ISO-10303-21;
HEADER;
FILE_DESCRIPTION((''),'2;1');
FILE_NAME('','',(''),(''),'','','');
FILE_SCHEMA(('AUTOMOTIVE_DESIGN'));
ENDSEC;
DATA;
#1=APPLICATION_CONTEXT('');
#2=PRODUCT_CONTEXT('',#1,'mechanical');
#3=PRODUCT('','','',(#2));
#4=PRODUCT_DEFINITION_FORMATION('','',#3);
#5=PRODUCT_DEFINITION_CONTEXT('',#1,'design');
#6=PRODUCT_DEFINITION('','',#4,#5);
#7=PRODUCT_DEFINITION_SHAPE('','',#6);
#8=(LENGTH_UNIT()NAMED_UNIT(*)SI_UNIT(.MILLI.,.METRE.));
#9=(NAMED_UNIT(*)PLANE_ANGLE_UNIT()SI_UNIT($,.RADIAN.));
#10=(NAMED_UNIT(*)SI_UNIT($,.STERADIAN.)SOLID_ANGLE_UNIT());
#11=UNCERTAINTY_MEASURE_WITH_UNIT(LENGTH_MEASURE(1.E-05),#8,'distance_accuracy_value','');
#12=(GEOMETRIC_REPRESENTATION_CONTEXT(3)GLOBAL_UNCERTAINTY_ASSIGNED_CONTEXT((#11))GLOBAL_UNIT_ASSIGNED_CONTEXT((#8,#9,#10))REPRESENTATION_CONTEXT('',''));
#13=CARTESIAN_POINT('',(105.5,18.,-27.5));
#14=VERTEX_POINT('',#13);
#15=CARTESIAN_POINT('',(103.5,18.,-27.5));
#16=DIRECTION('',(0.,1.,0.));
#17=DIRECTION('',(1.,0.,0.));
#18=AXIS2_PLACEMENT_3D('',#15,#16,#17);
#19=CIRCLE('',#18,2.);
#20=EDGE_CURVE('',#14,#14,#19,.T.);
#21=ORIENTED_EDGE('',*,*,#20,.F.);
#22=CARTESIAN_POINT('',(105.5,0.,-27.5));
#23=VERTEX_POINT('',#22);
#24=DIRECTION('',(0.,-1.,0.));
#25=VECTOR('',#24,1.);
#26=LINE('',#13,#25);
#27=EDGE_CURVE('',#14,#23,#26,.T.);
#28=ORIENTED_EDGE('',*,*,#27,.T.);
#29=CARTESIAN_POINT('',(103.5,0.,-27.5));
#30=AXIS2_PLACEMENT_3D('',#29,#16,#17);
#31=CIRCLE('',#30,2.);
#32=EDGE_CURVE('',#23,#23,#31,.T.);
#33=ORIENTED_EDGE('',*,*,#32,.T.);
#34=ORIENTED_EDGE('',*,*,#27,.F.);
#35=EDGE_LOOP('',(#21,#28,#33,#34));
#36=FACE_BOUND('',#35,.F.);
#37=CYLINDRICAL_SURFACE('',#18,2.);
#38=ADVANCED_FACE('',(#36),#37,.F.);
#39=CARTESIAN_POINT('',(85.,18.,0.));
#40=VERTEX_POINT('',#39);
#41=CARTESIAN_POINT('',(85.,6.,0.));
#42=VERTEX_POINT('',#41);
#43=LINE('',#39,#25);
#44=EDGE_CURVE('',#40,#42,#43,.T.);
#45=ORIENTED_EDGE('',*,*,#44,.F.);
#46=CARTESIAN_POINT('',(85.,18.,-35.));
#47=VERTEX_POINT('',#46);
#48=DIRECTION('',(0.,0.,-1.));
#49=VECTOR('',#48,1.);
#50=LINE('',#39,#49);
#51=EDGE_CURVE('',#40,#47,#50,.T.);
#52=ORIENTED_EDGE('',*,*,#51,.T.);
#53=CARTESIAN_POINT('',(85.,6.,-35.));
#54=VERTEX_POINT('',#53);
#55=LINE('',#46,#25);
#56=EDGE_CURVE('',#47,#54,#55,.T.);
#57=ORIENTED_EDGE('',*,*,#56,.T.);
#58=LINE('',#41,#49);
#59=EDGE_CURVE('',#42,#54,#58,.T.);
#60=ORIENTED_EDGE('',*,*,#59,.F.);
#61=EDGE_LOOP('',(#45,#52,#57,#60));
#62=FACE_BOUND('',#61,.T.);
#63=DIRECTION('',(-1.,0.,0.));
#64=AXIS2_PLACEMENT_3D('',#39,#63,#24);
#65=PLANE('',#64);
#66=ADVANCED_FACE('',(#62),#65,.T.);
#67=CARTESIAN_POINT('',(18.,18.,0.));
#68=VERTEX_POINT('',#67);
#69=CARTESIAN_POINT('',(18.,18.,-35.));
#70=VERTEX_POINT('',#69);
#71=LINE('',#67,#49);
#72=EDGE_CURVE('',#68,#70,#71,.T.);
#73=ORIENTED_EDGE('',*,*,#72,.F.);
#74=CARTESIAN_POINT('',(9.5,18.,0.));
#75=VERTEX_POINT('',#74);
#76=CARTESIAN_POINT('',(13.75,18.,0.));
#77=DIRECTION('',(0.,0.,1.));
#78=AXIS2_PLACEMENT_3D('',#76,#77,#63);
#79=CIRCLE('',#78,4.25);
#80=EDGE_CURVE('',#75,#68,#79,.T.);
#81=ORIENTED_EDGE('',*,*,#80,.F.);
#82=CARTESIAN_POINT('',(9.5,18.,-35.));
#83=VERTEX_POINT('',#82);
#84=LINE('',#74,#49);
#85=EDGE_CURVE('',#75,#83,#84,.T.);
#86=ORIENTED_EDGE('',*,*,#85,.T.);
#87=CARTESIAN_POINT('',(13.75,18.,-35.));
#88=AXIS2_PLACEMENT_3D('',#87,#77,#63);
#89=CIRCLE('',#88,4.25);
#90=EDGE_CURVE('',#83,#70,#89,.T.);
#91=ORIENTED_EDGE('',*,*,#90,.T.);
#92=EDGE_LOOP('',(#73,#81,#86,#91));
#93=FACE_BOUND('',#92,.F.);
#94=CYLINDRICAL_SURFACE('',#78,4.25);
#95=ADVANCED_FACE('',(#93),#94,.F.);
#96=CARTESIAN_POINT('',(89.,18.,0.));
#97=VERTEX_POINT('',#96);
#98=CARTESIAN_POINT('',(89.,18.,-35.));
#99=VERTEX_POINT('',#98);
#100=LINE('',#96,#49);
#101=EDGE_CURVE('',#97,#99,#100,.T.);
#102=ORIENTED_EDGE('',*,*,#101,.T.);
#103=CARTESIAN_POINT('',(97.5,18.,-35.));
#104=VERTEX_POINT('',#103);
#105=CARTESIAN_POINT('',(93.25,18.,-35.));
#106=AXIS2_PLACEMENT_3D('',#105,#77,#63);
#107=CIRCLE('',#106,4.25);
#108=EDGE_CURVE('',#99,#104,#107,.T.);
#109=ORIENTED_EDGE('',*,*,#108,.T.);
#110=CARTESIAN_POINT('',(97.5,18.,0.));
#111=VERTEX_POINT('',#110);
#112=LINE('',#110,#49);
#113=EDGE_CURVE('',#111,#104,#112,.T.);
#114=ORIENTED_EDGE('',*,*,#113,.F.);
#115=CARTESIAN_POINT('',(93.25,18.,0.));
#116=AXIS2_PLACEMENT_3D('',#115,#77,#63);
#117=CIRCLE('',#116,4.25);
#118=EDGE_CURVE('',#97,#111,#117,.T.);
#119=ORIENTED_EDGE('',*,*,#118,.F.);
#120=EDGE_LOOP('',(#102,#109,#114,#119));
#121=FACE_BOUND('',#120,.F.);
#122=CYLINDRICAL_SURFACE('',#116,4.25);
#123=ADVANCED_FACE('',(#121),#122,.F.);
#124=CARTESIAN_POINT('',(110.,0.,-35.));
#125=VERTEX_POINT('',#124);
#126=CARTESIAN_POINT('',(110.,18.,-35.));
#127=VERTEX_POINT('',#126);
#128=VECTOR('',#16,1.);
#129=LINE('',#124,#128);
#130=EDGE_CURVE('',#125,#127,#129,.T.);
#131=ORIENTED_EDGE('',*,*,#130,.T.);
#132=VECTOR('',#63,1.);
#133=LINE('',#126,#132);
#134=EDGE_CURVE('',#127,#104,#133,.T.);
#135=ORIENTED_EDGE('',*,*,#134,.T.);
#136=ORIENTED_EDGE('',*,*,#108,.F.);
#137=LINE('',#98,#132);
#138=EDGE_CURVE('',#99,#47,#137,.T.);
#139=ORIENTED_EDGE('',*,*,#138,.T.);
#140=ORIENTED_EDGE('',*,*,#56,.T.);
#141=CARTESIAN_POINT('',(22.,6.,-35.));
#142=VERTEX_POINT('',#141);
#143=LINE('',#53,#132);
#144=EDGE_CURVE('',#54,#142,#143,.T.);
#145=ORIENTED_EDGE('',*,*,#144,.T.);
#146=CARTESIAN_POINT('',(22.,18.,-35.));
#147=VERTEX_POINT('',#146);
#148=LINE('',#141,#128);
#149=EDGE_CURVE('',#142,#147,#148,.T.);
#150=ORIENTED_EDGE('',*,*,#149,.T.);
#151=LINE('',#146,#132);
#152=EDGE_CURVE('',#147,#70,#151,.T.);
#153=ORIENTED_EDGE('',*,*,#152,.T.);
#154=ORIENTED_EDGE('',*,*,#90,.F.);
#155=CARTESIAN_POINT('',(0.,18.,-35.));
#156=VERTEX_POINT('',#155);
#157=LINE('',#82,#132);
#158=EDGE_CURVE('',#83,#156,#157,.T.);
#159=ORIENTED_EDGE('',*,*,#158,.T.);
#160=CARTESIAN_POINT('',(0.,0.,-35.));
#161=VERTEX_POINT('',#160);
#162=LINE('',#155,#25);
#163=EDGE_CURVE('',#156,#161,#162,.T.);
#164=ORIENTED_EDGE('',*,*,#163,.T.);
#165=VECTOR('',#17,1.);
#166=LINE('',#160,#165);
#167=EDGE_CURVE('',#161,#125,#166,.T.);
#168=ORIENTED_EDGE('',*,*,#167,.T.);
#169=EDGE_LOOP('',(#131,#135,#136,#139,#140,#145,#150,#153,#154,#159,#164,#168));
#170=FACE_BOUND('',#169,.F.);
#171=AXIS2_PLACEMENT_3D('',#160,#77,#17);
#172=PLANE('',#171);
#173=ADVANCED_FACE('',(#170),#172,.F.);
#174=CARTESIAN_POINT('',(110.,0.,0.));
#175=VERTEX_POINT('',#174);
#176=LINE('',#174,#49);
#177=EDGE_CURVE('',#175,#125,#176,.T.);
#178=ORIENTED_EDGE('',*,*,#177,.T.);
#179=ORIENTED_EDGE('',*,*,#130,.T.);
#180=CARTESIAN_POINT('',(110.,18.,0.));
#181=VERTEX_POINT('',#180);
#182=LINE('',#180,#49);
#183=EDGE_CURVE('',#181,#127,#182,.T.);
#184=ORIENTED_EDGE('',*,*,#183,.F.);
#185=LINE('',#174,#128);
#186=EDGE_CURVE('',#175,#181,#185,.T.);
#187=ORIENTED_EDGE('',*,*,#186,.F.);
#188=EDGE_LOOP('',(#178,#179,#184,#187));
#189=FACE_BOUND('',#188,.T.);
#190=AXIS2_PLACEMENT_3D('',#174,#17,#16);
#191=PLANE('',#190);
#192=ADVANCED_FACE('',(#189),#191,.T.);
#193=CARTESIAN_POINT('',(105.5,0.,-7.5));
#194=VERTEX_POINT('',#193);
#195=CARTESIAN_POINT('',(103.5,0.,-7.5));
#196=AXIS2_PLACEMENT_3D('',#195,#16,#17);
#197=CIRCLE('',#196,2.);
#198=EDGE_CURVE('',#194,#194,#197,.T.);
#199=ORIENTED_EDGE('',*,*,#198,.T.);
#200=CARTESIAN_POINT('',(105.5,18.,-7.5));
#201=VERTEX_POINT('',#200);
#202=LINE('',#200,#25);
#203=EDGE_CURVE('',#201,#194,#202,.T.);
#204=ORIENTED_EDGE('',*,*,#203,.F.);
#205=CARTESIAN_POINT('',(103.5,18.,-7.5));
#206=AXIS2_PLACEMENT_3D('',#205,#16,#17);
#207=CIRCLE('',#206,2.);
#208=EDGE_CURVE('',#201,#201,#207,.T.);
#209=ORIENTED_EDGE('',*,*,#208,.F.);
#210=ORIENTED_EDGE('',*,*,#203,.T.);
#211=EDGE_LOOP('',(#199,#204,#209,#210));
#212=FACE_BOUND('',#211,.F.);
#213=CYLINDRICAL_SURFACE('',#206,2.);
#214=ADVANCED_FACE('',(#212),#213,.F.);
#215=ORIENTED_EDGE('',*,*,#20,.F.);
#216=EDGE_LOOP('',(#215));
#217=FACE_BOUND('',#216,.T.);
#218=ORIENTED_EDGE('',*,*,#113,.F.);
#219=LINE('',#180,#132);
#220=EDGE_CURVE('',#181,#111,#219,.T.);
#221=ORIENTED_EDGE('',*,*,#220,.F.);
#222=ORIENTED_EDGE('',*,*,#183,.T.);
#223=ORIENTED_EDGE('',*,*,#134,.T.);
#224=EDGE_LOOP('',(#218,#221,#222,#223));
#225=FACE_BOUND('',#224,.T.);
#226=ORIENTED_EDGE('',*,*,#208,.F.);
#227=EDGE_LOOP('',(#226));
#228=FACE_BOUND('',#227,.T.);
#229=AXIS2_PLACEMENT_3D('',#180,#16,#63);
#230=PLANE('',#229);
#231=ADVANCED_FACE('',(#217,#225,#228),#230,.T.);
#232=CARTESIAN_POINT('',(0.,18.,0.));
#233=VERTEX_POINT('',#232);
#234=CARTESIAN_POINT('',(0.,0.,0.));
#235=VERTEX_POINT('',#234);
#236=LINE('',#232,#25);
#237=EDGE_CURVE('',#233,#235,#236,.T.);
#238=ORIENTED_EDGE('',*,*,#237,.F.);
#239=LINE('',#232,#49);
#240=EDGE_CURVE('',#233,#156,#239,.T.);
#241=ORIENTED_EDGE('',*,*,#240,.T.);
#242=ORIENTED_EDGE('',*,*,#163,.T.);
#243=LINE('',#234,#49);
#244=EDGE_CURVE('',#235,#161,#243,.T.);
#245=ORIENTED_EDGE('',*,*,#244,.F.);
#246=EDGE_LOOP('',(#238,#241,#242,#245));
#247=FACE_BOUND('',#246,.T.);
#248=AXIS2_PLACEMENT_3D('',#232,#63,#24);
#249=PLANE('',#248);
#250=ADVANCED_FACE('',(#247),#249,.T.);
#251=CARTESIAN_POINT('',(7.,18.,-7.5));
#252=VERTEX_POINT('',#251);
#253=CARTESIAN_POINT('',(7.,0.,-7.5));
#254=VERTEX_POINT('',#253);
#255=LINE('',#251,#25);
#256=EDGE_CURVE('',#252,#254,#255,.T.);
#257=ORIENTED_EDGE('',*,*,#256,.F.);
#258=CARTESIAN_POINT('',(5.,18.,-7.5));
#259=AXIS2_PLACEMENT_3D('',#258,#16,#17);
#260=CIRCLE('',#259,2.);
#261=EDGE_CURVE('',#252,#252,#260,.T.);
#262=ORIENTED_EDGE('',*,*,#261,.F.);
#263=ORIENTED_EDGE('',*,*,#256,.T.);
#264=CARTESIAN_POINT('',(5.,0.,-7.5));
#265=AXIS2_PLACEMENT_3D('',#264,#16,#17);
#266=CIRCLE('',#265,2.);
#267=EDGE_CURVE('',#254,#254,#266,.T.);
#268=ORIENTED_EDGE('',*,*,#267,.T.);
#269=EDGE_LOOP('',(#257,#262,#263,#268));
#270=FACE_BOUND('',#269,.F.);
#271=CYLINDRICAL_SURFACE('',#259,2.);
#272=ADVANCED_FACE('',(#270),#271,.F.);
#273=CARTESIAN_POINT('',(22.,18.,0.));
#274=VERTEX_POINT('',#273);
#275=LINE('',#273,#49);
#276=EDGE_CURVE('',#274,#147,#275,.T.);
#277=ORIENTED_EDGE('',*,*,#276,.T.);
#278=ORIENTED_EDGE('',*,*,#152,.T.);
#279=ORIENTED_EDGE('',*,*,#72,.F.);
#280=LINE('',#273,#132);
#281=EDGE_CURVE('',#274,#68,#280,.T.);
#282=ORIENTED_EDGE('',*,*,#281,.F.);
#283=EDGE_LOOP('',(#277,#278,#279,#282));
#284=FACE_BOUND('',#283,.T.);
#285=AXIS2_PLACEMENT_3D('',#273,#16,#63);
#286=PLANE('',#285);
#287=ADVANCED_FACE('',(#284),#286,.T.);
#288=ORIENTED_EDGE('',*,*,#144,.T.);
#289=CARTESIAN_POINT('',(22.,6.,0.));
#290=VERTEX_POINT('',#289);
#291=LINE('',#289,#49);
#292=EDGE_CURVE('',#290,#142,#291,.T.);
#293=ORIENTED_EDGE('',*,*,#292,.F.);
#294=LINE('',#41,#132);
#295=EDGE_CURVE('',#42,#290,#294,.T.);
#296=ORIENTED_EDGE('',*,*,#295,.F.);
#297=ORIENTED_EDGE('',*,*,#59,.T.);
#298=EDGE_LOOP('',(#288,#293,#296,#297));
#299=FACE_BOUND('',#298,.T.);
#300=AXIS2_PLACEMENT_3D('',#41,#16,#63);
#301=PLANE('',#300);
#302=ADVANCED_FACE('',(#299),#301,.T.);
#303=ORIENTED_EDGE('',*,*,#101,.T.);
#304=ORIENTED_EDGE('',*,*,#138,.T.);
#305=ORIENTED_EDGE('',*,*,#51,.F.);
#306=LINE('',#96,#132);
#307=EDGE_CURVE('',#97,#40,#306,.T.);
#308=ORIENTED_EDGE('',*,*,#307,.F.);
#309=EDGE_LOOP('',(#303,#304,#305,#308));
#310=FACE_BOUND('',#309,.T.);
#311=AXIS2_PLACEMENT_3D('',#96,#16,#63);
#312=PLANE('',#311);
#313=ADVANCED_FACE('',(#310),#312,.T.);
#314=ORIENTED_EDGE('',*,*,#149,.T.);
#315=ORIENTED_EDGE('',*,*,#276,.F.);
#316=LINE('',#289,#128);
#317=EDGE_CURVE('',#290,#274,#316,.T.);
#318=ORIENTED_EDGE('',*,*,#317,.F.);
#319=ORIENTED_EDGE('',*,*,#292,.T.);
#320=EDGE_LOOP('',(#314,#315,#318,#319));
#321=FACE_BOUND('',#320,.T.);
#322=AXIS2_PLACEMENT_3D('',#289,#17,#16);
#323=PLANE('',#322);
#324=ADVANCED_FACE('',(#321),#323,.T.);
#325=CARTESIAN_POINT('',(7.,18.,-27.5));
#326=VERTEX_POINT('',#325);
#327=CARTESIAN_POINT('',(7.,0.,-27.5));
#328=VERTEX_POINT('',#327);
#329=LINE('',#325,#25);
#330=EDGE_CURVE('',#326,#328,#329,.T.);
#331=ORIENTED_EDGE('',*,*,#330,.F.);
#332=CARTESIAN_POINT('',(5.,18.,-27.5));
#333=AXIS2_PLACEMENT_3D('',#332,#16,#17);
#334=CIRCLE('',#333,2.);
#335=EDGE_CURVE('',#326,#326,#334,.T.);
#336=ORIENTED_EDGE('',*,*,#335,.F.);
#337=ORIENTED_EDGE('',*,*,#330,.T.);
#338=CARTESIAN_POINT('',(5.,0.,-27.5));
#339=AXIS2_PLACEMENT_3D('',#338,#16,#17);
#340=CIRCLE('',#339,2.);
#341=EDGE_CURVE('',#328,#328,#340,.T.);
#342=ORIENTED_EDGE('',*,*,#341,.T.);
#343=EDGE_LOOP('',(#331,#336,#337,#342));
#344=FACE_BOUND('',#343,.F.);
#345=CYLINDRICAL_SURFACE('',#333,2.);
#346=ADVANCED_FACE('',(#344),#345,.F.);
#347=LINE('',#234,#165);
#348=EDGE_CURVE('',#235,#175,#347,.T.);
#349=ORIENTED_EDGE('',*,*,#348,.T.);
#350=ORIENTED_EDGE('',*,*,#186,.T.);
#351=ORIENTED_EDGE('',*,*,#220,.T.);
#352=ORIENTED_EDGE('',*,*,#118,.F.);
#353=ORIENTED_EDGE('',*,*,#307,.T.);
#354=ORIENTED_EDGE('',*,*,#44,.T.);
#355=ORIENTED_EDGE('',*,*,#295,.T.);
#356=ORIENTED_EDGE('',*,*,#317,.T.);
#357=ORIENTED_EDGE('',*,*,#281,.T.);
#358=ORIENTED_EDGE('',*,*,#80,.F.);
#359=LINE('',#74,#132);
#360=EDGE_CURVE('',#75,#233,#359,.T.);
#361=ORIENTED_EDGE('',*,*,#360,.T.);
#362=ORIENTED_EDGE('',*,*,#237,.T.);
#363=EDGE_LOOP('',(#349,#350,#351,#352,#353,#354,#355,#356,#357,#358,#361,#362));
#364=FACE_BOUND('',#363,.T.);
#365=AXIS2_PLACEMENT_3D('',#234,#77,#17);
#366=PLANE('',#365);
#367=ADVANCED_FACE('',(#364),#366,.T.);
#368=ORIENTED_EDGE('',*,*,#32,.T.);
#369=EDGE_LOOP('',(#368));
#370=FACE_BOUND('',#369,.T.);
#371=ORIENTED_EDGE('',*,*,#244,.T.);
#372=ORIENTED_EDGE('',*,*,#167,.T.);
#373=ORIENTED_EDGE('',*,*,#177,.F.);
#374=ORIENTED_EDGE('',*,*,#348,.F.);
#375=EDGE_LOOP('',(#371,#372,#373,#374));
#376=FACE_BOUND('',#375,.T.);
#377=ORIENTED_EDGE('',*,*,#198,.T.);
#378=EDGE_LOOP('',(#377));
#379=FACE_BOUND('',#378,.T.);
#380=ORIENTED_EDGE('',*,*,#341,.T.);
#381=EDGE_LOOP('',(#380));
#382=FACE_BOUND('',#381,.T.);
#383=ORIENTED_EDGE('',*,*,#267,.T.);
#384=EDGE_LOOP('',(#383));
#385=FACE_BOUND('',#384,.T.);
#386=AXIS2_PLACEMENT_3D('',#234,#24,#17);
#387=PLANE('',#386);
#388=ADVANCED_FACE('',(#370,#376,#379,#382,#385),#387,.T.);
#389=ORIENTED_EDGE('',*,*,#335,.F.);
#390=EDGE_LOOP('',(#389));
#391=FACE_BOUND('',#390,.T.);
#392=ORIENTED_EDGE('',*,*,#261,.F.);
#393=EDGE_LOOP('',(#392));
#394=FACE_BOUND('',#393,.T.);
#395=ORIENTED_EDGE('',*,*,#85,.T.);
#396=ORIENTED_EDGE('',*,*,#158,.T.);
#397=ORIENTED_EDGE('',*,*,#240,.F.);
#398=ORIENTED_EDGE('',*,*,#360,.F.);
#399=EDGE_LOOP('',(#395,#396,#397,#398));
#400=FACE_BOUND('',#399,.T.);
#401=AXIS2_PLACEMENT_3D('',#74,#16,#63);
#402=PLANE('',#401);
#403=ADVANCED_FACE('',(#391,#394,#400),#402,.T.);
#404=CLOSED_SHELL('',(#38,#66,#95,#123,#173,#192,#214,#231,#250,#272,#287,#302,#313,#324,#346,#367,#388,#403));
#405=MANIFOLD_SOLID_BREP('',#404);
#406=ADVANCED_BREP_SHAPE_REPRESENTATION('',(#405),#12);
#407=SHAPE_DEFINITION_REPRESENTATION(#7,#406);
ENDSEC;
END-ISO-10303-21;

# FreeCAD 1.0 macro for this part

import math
import FreeCAD as App
import Part
import Sketcher

V = App.Vector

doc = App.newDocument("Part")
params = doc.addObject("Spreadsheet::Sheet", "Params")
for row, (alias, value) in enumerate([
    ("sketch1_width", "110 mm"),
    ("sketch1_width2", "4 mm"),
    ("sketch1_width3", "63 mm"),
    ("sketch1_height", "18 mm"),
    ("sketch1_height2", "12 mm"),
    ("pad1_length", "35 mm"),
    ("sketch2_diameter", "4 mm"),
    ("pocket1_length", "18 mm"),
], start=1):
    params.set(f"A{row}", alias)
    params.set(f"B{row}", "=" + value)
    params.setAlias(f"B{row}", alias)

body = doc.addObject("PartDesign::Body", "Body")

# Sketch on XY plane
sketch1 = body.newObject("Sketcher::SketchObject", "Sketch")
sketch1.AttachmentSupport = (doc.getObject("XY_Plane"), [""])
sketch1.MapMode = "FlatFace"
sketch1.addGeometry(Part.LineSegment(V(0, 18, 0), V(0, 0, 0)), False)
sketch1.addGeometry(Part.LineSegment(V(0, 0, 0), V(110, 0, 0)), False)
sketch1.addGeometry(Part.LineSegment(V(110, 0, 0), V(110, 18, 0)), False)
sketch1.addGeometry(Part.LineSegment(V(110, 18, 0), V(97.5, 18, 0)), False)
sketch1.addGeometry(Part.ArcOfCircle(Part.Circle(V(93.25, 18, 0), V(0, 0, 1), 4.25), math.radians(180), math.radians(360)), False)
sketch1.addGeometry(Part.LineSegment(V(89, 18, 0), V(85, 18, 0)), False)
sketch1.addGeometry(Part.LineSegment(V(85, 18, 0), V(85, 6, 0)), False)
sketch1.addGeometry(Part.LineSegment(V(85, 6, 0), V(22, 6, 0)), False)
sketch1.addGeometry(Part.LineSegment(V(22, 6, 0), V(22, 18, 0)), False)
sketch1.addGeometry(Part.LineSegment(V(22, 18, 0), V(18, 18, 0)), False)
sketch1.addGeometry(Part.ArcOfCircle(Part.Circle(V(13.75, 18, 0), V(0, 0, 1), 4.25), math.radians(180), math.radians(360)), False)
sketch1.addGeometry(Part.LineSegment(V(9.5, 18, 0), V(0, 18, 0)), False)
sketch1.addConstraint(Sketcher.Constraint("Coincident", 0, 2, 1, 1))
sketch1.addConstraint(Sketcher.Constraint("Coincident", 1, 2, 2, 1))
sketch1.addConstraint(Sketcher.Constraint("Coincident", 2, 2, 3, 1))
sketch1.addConstraint(Sketcher.Constraint("Coincident", 3, 2, 4, 2))
sketch1.addConstraint(Sketcher.Constraint("Coincident", 4, 1, 5, 1))
sketch1.addConstraint(Sketcher.Constraint("Coincident", 5, 2, 6, 1))
sketch1.addConstraint(Sketcher.Constraint("Coincident", 6, 2, 7, 1))
sketch1.addConstraint(Sketcher.Constraint("Coincident", 7, 2, 8, 1))
sketch1.addConstraint(Sketcher.Constraint("Coincident", 8, 2, 9, 1))
sketch1.addConstraint(Sketcher.Constraint("Coincident", 9, 2, 10, 2))
sketch1.addConstraint(Sketcher.Constraint("Coincident", 10, 1, 11, 1))
sketch1.addConstraint(Sketcher.Constraint("Coincident", 11, 2, 0, 1))
sketch1.addConstraint(Sketcher.Constraint("Vertical", 0))
sketch1.addConstraint(Sketcher.Constraint("Horizontal", 1))
sketch1.addConstraint(Sketcher.Constraint("Vertical", 2))
sketch1.addConstraint(Sketcher.Constraint("Horizontal", 3))
sketch1.addConstraint(Sketcher.Constraint("Horizontal", 5))
sketch1.addConstraint(Sketcher.Constraint("Vertical", 6))
sketch1.addConstraint(Sketcher.Constraint("Horizontal", 7))
sketch1.addConstraint(Sketcher.Constraint("Vertical", 8))
sketch1.addConstraint(Sketcher.Constraint("Horizontal", 9))
sketch1.addConstraint(Sketcher.Constraint("Horizontal", 11))
sketch1.addConstraint(Sketcher.Constraint("Coincident", 0, 2, -1, 1))
sketch1.addConstraint(Sketcher.Constraint("Equal", 4, 10))
sketch1.addConstraint(Sketcher.Constraint("Horizontal", 4, 3, 10, 3))
sketch1.addConstraint(Sketcher.Constraint("Horizontal", 10, 3, 2, 2))
sketch1.addConstraint(Sketcher.Constraint("Horizontal", 3, 2, 4, 1))
sketch1.addConstraint(Sketcher.Constraint("Horizontal", 5, 2, 8, 2))
sketch1.addConstraint(Sketcher.Constraint("Horizontal", 9, 2, 10, 1))
sketch1.addConstraint(Sketcher.Constraint("Equal", 5, 9))
sketch1.addConstraint(Sketcher.Constraint("DistanceX", 1, 1, 1, 2, 110.0))
sketch1.addConstraint(Sketcher.Constraint("DistanceX", 5, 2, 5, 1, 4.0))
sketch1.addConstraint(Sketcher.Constraint("DistanceX", 7, 2, 7, 1, 63.0))
sketch1.addConstraint(Sketcher.Constraint("DistanceY", 0, 2, 0, 1, 18.0))
sketch1.addConstraint(Sketcher.Constraint("DistanceY", 6, 2, 6, 1, 12.0))
sketch1.addConstraint(Sketcher.Constraint("Radius", 4, 4.25))
sketch1.addConstraint(Sketcher.Constraint("DistanceX", 3, 2, 3, 1, 12.5))
sketch1.setExpression("Constraints[30]", "Params.sketch1_width")
sketch1.setExpression("Constraints[31]", "Params.sketch1_width2")
sketch1.setExpression("Constraints[32]", "Params.sketch1_width3")
sketch1.setExpression("Constraints[33]", "Params.sketch1_height")
sketch1.setExpression("Constraints[34]", "Params.sketch1_height2")
pad1 = body.newObject("PartDesign::Pad", "Pad")
pad1.Profile = sketch1
pad1.setExpression("Length", "Params.pad1_length")
pad1.Reversed = True

# Sketch on XZ plane
sketch2 = body.newObject("Sketcher::SketchObject", "Sketch001")
sketch2.AttachmentSupport = (doc.getObject("XZ_Plane"), [""])
sketch2.MapMode = "FlatFace"
sketch2.AttachmentOffset = App.Placement(V(0, 0, -18), App.Rotation())
sketch2.addGeometry(Part.Circle(V(103.5, -27.5, 0), V(0, 0, 1), 2), False)
sketch2.addGeometry(Part.Circle(V(103.5, -7.5, 0), V(0, 0, 1), 2), False)
sketch2.addGeometry(Part.Circle(V(5, -27.5, 0), V(0, 0, 1), 2), False)
sketch2.addGeometry(Part.Circle(V(5, -7.5, 0), V(0, 0, 1), 2), False)
sketch2.addConstraint(Sketcher.Constraint("Equal", 0, 1))
sketch2.addConstraint(Sketcher.Constraint("Equal", 1, 2))
sketch2.addConstraint(Sketcher.Constraint("Equal", 2, 3))
sketch2.addConstraint(Sketcher.Constraint("Horizontal", 0, 3, 2, 3))
sketch2.addConstraint(Sketcher.Constraint("Horizontal", 1, 3, 3, 3))
sketch2.addConstraint(Sketcher.Constraint("Vertical", 0, 3, 1, 3))
sketch2.addConstraint(Sketcher.Constraint("Vertical", 2, 3, 3, 3))
sketch2.addConstraint(Sketcher.Constraint("Diameter", 0, 4.0))
sketch2.addConstraint(Sketcher.Constraint("DistanceX", -1, 1, 2, 3, 5.0))
sketch2.addConstraint(Sketcher.Constraint("DistanceY", 0, 3, 1, 3, 20.0))
sketch2.addConstraint(Sketcher.Constraint("DistanceX", -1, 1, 0, 3, 103.5))
sketch2.addConstraint(Sketcher.Constraint("DistanceY", 0, 3, -1, 1, 27.5))
sketch2.setExpression("Constraints[7]", "Params.sketch2_diameter")
pocket1 = body.newObject("PartDesign::Pocket", "Pocket")
pocket1.Profile = sketch2
pocket1.setExpression("Length", "Params.pocket1_length")
pocket1.Reversed = True

doc.recompute()
